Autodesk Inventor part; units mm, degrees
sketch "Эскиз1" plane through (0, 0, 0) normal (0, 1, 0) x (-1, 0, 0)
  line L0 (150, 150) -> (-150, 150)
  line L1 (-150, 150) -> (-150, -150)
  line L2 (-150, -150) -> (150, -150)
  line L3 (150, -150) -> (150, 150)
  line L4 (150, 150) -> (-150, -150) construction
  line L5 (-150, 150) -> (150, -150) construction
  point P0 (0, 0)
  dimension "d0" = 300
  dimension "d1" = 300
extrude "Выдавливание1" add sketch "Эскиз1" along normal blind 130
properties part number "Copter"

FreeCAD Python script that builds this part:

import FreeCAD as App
import Part
import Sketcher

V = App.Vector


def add_polygon(sketch, points):
    """Adds a closed chain of lines whose ends are joined by coincident constraints."""
    first, n = sketch.GeometryCount, len(points)
    for a, b in zip(points, points[1:] + points[:1]):
        sketch.addGeometry(Part.LineSegment(App.Vector(*a, 0), App.Vector(*b, 0)), False)
    for i in range(n):
        sketch.addConstraint(Sketcher.Constraint("Coincident", first + i, 2, first + (i + 1) % n, 1))

doc = App.newDocument("Part")
body = doc.addObject("PartDesign::Body", "Body")

# Sketch on XZ plane
sketch1 = body.newObject("Sketcher::SketchObject", "Sketch")
sketch1.AttachmentSupport = (doc.getObject("XZ_Plane"), [""])
sketch1.MapMode = "FlatFace"
add_polygon(sketch1, [(-150, -150), (-150, 150), (150, 150), (150, -150)])  # lines 0-3
sketch1.addConstraint([
    Sketcher.Constraint("Vertical", 0),
    Sketcher.Constraint("Horizontal", 1),
    Sketcher.Constraint("Vertical", 2),
    Sketcher.Constraint("Horizontal", 3),
    Sketcher.Constraint("Symmetric", 0, 2, 2, 2, -1, 1),
    Sketcher.Constraint("Equal", 3, 0),
    Sketcher.Constraint("DistanceX", 1, 1, 1, 2, 300.0),
])
pad1 = body.newObject("PartDesign::Pad", "Pad")
pad1.Profile = sketch1
pad1.Length = 130
pad1.Reversed = True

doc.recompute()
